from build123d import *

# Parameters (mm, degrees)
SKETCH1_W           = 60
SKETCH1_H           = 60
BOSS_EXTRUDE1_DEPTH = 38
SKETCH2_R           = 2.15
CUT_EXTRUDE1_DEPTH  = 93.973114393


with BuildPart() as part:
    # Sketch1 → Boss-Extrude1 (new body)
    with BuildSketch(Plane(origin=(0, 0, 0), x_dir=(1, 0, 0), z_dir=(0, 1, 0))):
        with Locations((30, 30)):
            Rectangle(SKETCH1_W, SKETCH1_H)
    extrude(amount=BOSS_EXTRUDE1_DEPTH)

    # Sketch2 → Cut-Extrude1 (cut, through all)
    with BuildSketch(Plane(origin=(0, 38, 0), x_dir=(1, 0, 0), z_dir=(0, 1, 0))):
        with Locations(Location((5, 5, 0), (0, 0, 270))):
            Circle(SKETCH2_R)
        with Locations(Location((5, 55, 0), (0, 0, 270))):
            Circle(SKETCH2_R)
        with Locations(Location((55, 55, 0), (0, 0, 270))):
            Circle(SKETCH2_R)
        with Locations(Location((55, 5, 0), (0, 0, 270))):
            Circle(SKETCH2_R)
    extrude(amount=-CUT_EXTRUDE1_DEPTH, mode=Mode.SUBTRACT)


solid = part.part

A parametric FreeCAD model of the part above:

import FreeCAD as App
import Part
import Sketcher

V = App.Vector


def add_polygon(sketch, points):
    """Adds a closed chain of lines whose ends are joined by coincident constraints."""
    first, n = sketch.GeometryCount, len(points)
    for a, b in zip(points, points[1:] + points[:1]):
        sketch.addGeometry(Part.LineSegment(App.Vector(*a, 0), App.Vector(*b, 0)), False)
    for i in range(n):
        sketch.addConstraint(Sketcher.Constraint("Coincident", first + i, 2, first + (i + 1) % n, 1))

doc = App.newDocument("Part")
body = doc.addObject("PartDesign::Body", "Body")

# Sketch on XZ plane
sketch1 = body.newObject("Sketcher::SketchObject", "Sketch")
sketch1.AttachmentSupport = (doc.getObject("XZ_Plane"), [""])
sketch1.MapMode = "FlatFace"
add_polygon(sketch1, [(0, -60), (0, 0), (60, 0), (60, -60)])  # lines 0-3
sketch1.addConstraint(Sketcher.Constraint("Vertical", 0))
sketch1.addConstraint(Sketcher.Constraint("Horizontal", 1))
sketch1.addConstraint(Sketcher.Constraint("Vertical", 2))
sketch1.addConstraint(Sketcher.Constraint("Horizontal", 3))
sketch1.addConstraint(Sketcher.Constraint("Coincident", 0, 2, -1, 1))
sketch1.addConstraint(Sketcher.Constraint("Equal", 3, 0))
sketch1.addConstraint(Sketcher.Constraint("DistanceX", 1, 1, 1, 2, 60.0))
pad1 = body.newObject("PartDesign::Pad", "Pad")
pad1.Profile = sketch1
pad1.Length = 38
pad1.Reversed = True

# Sketch on XZ plane
sketch2 = body.newObject("Sketcher::SketchObject", "Sketch001")
sketch2.AttachmentSupport = (doc.getObject("XZ_Plane"), [""])
sketch2.MapMode = "FlatFace"
sketch2.AttachmentOffset = App.Placement(V(0, 0, -38), App.Rotation())
sketch2.addGeometry(Part.Circle(V(5, -5, 0), V(0, 0, 1), 2.15), False)
sketch2.addGeometry(Part.Circle(V(5, -55, 0), V(0, 0, 1), 2.15), False)
sketch2.addGeometry(Part.Circle(V(55, -55, 0), V(0, 0, 1), 2.15), False)
sketch2.addGeometry(Part.Circle(V(55, -5, 0), V(0, 0, 1), 2.15), False)
sketch2.addConstraint(Sketcher.Constraint("Equal", 0, 1))
sketch2.addConstraint(Sketcher.Constraint("Equal", 1, 2))
sketch2.addConstraint(Sketcher.Constraint("Equal", 2, 3))
sketch2.addConstraint(Sketcher.Constraint("Horizontal", 1, 3, 2, 3))
sketch2.addConstraint(Sketcher.Constraint("Horizontal", 0, 3, 3, 3))
sketch2.addConstraint(Sketcher.Constraint("Vertical", 0, 3, 1, 3))
sketch2.addConstraint(Sketcher.Constraint("Vertical", 2, 3, 3, 3))
sketch2.addConstraint(Sketcher.Constraint("Diameter", 0, 4.3))
sketch2.addConstraint(Sketcher.Constraint("DistanceX", -1, 1, 0, 3, 5.0))
sketch2.addConstraint(Sketcher.Constraint("DistanceY", 0, 3, -1, 1, 5.0))
sketch2.addConstraint(Sketcher.Constraint("DistanceY", 1, 3, -1, 1, 55.0))
sketch2.addConstraint(Sketcher.Constraint("DistanceX", -1, 1, 2, 3, 55.0))
pocket1 = body.newObject("PartDesign::Pocket", "Pocket")
pocket1.Profile = sketch2
pocket1.Type = "ThroughAll"
pocket1.Reversed = True

doc.recompute()
